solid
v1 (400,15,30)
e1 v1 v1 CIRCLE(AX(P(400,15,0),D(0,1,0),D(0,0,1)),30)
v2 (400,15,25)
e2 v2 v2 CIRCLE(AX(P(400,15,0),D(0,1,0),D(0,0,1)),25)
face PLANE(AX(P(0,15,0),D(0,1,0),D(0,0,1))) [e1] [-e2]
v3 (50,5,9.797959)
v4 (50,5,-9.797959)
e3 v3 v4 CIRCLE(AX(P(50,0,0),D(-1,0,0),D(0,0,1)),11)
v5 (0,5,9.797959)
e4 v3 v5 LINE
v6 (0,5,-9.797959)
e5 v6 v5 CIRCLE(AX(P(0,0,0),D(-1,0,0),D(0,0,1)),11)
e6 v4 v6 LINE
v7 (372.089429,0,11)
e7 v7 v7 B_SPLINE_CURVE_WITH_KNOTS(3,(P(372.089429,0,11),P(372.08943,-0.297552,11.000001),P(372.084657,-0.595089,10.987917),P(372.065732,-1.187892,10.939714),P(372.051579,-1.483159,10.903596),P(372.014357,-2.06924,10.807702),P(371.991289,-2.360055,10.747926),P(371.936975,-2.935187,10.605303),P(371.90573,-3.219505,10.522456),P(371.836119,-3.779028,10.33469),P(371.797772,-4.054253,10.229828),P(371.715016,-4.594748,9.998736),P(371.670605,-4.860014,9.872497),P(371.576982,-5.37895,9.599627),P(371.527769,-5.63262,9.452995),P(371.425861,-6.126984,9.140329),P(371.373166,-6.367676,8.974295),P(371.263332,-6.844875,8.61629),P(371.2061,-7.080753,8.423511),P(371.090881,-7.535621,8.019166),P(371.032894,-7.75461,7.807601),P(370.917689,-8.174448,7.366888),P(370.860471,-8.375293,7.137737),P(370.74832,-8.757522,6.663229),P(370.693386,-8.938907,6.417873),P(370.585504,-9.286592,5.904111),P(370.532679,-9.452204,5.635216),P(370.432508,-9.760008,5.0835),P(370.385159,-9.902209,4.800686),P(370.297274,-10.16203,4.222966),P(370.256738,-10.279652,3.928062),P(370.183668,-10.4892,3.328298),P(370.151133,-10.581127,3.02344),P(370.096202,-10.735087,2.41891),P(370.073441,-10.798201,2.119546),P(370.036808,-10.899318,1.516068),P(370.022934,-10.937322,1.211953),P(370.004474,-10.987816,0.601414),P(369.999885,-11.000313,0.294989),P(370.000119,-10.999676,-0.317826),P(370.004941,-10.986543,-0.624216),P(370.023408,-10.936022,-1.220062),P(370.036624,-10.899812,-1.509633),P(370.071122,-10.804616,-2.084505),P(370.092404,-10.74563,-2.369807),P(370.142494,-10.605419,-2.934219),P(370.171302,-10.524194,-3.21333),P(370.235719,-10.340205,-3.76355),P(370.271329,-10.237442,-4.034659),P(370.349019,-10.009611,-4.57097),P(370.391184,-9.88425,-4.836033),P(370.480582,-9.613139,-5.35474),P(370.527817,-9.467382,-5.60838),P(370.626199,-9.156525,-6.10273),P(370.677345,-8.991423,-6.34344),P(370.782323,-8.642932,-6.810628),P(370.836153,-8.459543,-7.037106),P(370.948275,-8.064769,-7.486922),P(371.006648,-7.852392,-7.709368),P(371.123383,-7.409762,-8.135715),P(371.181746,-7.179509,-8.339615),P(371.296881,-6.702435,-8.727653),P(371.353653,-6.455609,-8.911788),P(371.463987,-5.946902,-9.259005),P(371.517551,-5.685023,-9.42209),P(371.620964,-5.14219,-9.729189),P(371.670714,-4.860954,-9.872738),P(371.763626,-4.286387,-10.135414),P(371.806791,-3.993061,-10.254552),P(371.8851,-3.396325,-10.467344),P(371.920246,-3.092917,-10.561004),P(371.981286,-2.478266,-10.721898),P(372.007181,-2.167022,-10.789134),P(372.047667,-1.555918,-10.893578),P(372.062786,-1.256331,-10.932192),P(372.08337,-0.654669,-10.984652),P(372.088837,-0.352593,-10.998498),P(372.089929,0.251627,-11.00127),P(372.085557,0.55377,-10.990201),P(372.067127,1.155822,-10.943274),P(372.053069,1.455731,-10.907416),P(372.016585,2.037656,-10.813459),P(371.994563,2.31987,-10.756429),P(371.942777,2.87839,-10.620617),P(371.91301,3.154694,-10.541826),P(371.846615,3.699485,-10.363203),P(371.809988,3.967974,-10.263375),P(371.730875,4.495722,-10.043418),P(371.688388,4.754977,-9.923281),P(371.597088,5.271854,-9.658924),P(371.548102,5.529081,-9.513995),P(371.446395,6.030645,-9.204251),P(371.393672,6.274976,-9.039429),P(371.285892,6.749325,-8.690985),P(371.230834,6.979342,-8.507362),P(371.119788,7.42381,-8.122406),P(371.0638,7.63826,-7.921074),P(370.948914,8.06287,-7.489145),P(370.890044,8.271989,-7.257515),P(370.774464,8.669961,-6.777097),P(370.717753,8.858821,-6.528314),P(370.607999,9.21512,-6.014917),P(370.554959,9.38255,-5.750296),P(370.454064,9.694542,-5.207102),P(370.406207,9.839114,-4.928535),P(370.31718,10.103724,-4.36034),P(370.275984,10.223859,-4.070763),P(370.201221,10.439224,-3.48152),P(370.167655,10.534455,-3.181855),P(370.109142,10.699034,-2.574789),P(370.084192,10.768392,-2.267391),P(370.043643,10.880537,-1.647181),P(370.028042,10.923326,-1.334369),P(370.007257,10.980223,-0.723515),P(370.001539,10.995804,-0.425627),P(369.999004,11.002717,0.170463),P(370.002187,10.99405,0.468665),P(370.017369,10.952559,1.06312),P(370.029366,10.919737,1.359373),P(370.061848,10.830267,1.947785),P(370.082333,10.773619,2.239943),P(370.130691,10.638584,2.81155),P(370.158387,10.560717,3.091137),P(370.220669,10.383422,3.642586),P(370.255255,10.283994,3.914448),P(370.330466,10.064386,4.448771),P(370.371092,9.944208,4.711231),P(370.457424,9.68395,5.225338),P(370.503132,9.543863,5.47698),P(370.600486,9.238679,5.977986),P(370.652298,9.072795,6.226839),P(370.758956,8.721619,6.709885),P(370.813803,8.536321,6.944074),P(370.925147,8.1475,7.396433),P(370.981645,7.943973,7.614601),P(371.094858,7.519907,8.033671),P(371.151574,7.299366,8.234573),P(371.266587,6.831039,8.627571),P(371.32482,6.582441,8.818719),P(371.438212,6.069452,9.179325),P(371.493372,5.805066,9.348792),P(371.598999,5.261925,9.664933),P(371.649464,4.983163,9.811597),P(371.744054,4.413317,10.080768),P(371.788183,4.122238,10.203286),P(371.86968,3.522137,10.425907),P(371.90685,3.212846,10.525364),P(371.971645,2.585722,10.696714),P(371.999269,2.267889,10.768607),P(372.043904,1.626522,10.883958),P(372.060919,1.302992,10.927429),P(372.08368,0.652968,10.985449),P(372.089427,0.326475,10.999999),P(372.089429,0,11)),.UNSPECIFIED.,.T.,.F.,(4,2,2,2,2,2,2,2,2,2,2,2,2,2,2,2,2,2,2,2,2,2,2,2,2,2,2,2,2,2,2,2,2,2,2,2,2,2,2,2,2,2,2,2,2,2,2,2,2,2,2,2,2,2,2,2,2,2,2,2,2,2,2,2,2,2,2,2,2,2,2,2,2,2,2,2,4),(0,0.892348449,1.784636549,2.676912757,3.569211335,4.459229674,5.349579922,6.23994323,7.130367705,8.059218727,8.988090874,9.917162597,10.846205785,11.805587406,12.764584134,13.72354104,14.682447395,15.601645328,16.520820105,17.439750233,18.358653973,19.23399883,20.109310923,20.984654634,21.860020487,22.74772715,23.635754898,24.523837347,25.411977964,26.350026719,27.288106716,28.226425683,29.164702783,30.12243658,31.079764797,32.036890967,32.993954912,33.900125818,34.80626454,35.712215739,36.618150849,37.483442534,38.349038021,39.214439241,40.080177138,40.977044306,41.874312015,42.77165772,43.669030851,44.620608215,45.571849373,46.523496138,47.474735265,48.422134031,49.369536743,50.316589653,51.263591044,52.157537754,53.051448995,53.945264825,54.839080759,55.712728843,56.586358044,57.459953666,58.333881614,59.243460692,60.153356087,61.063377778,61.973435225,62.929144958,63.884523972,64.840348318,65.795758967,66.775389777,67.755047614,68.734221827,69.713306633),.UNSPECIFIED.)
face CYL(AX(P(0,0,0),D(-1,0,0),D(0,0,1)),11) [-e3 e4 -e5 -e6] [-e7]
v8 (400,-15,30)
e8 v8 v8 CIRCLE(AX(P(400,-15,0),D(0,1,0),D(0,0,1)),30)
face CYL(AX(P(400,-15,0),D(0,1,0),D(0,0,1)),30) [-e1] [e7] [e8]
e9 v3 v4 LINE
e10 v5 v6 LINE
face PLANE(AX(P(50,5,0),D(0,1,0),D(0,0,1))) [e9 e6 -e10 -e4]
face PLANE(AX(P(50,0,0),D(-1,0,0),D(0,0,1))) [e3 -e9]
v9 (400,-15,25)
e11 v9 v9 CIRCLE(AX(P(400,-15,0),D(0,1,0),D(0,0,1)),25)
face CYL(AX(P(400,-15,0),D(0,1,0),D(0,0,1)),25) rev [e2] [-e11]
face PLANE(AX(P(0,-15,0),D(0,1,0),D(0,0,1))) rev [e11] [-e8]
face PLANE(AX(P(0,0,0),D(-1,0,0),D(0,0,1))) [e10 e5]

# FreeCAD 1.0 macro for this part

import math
import FreeCAD as App
import Part
import Sketcher
from FreeCAD import Vector

doc = App.newDocument("Part")
body = doc.addObject("PartDesign::Body", "Body")

# Sketch on XZ plane
sketch1 = body.newObject("Sketcher::SketchObject", "Sketch")
sketch1.AttachmentSupport = (doc.getObject("XZ_Plane"), [""])
sketch1.MapMode = "FlatFace"
sketch1.addGeometry([
    Part.LineSegment(Vector(0, -11, 0), Vector(0, 0, 0)),
    Part.LineSegment(Vector(0, 0, 0), Vector(370, 0, 0)),
    Part.ArcOfCircle(Part.Circle(Vector(400, 0, 0), Vector(0, 0, 1), 30), math.radians(-180), math.radians(-158.489812)),
    Part.LineSegment(Vector(372.089429, -11, 0), Vector(0, -11, 0)),
], False)
sketch1.addConstraint([
    Sketcher.Constraint("Coincident", 0, 2, 1, 1),
    Sketcher.Constraint("Coincident", 1, 2, 2, 1),
    Sketcher.Constraint("Coincident", 2, 2, 3, 1),
    Sketcher.Constraint("Coincident", 3, 2, 0, 1),
    Sketcher.Constraint("Vertical", 0),
    Sketcher.Constraint("Horizontal", 1),
    Sketcher.Constraint("Horizontal", 3),
    Sketcher.Constraint("Coincident", 0, 2, -1, 1),
    Sketcher.Constraint("PointOnObject", 2, 3, -1),
    Sketcher.Constraint("Radius", 2, 30.0),
    Sketcher.Constraint("DistanceX", 1, 1, 1, 2, 370.0),
    Sketcher.Constraint("DistanceY", 0, 1, 0, 2, 11.0),
])
revolution = body.newObject("PartDesign::Revolution", "Revolution")
revolution.Profile = sketch1
revolution.ReferenceAxis = (sketch1, ["H_Axis"])
revolution.Angle = 360

# Sketch on XZ plane
sketch2 = body.newObject("Sketcher::SketchObject", "Sketch001")
sketch2.AttachmentSupport = (doc.getObject("XZ_Plane"), [""])
sketch2.MapMode = "FlatFace"
sketch2.addGeometry([
    Part.ArcOfCircle(Part.Circle(Vector(400, 0, 0), Vector(0, 0, 1), 30), math.radians(-180), math.radians(-158.489812)),
    Part.ArcOfCircle(Part.Circle(Vector(400, 0, 0), Vector(0, 0, 1), 30), math.radians(0), math.radians(180)),
    Part.ArcOfCircle(Part.Circle(Vector(400, 0, 0), Vector(0, 0, 1), 30), math.radians(-158.489812), math.radians(0)),
], False)
sketch2.addConstraint([
    Sketcher.Constraint("Tangent", 0, 1, 1, 2),
    Sketcher.Constraint("Tangent", 1, 1, 2, 2),
    Sketcher.Constraint("Tangent", 2, 1, 0, 2),
    Sketcher.Constraint("PointOnObject", 0, 3, -1),
    Sketcher.Constraint("PointOnObject", 0, 1, -1),
    Sketcher.Constraint("PointOnObject", 1, 1, -1),
    Sketcher.Constraint("Radius", 0, 30.0),
    Sketcher.Constraint("DistanceX", -1, 1, 0, 3, 400.0),
    Sketcher.Constraint("DistanceY", 2, 1, -1, 1, 11.0),
])
pad1 = body.newObject("PartDesign::Pad", "Pad")
pad1.Profile = sketch2
pad1.Type = "TwoLengths"
pad1.Length = 15
pad1.Length2 = 15
pad1.Reversed = True

# Sketch on XZ plane
sketch3 = body.newObject("Sketcher::SketchObject", "Sketch002")
sketch3.AttachmentSupport = (doc.getObject("XZ_Plane"), [""])
sketch3.MapMode = "FlatFace"
sketch3.AttachmentOffset = App.Placement(Vector(0, 0, -15), App.Rotation())
sketch3.addGeometry(Part.Circle(Vector(400, 0, 0), Vector(0, 0, 1), 25), False)
sketch3.addConstraint([
    Sketcher.Constraint("PointOnObject", 0, 3, -1),
    Sketcher.Constraint("Diameter", 0, 50.0),
    Sketcher.Constraint("DistanceX", -1, 1, 0, 3, 400.0),
])
pocket1 = body.newObject("PartDesign::Pocket", "Pocket")
pocket1.Profile = sketch3
pocket1.Length = 30
pocket1.Reversed = True

# Sketch on YZ plane
sketch4 = body.newObject("Sketcher::SketchObject", "Sketch003")
sketch4.AttachmentSupport = (doc.getObject("YZ_Plane"), [""])
sketch4.MapMode = "FlatFace"
sketch4.addGeometry([
    Part.LineSegment(Vector(5, -9.797959, 0), Vector(5, 9.797959, 0)),
    Part.ArcOfCircle(Part.Circle(Vector(0, 0, 0), Vector(0, 0, 1), 11), math.radians(-62.964308), math.radians(62.964308)),
], False)
sketch4.addConstraint([
    Sketcher.Constraint("Coincident", 0, 1, 1, 1),
    Sketcher.Constraint("Coincident", 1, 2, 0, 2),
    Sketcher.Constraint("Vertical", 0),
    Sketcher.Constraint("Coincident", 1, 3, -1, 1),
    Sketcher.Constraint("Radius", 1, 11.0),
    Sketcher.Constraint("DistanceX", -1, 1, 0, 1, 5.0),
])
pocket2 = body.newObject("PartDesign::Pocket", "Pocket001")
pocket2.Profile = sketch4
pocket2.Length = 50
pocket2.Reversed = True

doc.recompute()
